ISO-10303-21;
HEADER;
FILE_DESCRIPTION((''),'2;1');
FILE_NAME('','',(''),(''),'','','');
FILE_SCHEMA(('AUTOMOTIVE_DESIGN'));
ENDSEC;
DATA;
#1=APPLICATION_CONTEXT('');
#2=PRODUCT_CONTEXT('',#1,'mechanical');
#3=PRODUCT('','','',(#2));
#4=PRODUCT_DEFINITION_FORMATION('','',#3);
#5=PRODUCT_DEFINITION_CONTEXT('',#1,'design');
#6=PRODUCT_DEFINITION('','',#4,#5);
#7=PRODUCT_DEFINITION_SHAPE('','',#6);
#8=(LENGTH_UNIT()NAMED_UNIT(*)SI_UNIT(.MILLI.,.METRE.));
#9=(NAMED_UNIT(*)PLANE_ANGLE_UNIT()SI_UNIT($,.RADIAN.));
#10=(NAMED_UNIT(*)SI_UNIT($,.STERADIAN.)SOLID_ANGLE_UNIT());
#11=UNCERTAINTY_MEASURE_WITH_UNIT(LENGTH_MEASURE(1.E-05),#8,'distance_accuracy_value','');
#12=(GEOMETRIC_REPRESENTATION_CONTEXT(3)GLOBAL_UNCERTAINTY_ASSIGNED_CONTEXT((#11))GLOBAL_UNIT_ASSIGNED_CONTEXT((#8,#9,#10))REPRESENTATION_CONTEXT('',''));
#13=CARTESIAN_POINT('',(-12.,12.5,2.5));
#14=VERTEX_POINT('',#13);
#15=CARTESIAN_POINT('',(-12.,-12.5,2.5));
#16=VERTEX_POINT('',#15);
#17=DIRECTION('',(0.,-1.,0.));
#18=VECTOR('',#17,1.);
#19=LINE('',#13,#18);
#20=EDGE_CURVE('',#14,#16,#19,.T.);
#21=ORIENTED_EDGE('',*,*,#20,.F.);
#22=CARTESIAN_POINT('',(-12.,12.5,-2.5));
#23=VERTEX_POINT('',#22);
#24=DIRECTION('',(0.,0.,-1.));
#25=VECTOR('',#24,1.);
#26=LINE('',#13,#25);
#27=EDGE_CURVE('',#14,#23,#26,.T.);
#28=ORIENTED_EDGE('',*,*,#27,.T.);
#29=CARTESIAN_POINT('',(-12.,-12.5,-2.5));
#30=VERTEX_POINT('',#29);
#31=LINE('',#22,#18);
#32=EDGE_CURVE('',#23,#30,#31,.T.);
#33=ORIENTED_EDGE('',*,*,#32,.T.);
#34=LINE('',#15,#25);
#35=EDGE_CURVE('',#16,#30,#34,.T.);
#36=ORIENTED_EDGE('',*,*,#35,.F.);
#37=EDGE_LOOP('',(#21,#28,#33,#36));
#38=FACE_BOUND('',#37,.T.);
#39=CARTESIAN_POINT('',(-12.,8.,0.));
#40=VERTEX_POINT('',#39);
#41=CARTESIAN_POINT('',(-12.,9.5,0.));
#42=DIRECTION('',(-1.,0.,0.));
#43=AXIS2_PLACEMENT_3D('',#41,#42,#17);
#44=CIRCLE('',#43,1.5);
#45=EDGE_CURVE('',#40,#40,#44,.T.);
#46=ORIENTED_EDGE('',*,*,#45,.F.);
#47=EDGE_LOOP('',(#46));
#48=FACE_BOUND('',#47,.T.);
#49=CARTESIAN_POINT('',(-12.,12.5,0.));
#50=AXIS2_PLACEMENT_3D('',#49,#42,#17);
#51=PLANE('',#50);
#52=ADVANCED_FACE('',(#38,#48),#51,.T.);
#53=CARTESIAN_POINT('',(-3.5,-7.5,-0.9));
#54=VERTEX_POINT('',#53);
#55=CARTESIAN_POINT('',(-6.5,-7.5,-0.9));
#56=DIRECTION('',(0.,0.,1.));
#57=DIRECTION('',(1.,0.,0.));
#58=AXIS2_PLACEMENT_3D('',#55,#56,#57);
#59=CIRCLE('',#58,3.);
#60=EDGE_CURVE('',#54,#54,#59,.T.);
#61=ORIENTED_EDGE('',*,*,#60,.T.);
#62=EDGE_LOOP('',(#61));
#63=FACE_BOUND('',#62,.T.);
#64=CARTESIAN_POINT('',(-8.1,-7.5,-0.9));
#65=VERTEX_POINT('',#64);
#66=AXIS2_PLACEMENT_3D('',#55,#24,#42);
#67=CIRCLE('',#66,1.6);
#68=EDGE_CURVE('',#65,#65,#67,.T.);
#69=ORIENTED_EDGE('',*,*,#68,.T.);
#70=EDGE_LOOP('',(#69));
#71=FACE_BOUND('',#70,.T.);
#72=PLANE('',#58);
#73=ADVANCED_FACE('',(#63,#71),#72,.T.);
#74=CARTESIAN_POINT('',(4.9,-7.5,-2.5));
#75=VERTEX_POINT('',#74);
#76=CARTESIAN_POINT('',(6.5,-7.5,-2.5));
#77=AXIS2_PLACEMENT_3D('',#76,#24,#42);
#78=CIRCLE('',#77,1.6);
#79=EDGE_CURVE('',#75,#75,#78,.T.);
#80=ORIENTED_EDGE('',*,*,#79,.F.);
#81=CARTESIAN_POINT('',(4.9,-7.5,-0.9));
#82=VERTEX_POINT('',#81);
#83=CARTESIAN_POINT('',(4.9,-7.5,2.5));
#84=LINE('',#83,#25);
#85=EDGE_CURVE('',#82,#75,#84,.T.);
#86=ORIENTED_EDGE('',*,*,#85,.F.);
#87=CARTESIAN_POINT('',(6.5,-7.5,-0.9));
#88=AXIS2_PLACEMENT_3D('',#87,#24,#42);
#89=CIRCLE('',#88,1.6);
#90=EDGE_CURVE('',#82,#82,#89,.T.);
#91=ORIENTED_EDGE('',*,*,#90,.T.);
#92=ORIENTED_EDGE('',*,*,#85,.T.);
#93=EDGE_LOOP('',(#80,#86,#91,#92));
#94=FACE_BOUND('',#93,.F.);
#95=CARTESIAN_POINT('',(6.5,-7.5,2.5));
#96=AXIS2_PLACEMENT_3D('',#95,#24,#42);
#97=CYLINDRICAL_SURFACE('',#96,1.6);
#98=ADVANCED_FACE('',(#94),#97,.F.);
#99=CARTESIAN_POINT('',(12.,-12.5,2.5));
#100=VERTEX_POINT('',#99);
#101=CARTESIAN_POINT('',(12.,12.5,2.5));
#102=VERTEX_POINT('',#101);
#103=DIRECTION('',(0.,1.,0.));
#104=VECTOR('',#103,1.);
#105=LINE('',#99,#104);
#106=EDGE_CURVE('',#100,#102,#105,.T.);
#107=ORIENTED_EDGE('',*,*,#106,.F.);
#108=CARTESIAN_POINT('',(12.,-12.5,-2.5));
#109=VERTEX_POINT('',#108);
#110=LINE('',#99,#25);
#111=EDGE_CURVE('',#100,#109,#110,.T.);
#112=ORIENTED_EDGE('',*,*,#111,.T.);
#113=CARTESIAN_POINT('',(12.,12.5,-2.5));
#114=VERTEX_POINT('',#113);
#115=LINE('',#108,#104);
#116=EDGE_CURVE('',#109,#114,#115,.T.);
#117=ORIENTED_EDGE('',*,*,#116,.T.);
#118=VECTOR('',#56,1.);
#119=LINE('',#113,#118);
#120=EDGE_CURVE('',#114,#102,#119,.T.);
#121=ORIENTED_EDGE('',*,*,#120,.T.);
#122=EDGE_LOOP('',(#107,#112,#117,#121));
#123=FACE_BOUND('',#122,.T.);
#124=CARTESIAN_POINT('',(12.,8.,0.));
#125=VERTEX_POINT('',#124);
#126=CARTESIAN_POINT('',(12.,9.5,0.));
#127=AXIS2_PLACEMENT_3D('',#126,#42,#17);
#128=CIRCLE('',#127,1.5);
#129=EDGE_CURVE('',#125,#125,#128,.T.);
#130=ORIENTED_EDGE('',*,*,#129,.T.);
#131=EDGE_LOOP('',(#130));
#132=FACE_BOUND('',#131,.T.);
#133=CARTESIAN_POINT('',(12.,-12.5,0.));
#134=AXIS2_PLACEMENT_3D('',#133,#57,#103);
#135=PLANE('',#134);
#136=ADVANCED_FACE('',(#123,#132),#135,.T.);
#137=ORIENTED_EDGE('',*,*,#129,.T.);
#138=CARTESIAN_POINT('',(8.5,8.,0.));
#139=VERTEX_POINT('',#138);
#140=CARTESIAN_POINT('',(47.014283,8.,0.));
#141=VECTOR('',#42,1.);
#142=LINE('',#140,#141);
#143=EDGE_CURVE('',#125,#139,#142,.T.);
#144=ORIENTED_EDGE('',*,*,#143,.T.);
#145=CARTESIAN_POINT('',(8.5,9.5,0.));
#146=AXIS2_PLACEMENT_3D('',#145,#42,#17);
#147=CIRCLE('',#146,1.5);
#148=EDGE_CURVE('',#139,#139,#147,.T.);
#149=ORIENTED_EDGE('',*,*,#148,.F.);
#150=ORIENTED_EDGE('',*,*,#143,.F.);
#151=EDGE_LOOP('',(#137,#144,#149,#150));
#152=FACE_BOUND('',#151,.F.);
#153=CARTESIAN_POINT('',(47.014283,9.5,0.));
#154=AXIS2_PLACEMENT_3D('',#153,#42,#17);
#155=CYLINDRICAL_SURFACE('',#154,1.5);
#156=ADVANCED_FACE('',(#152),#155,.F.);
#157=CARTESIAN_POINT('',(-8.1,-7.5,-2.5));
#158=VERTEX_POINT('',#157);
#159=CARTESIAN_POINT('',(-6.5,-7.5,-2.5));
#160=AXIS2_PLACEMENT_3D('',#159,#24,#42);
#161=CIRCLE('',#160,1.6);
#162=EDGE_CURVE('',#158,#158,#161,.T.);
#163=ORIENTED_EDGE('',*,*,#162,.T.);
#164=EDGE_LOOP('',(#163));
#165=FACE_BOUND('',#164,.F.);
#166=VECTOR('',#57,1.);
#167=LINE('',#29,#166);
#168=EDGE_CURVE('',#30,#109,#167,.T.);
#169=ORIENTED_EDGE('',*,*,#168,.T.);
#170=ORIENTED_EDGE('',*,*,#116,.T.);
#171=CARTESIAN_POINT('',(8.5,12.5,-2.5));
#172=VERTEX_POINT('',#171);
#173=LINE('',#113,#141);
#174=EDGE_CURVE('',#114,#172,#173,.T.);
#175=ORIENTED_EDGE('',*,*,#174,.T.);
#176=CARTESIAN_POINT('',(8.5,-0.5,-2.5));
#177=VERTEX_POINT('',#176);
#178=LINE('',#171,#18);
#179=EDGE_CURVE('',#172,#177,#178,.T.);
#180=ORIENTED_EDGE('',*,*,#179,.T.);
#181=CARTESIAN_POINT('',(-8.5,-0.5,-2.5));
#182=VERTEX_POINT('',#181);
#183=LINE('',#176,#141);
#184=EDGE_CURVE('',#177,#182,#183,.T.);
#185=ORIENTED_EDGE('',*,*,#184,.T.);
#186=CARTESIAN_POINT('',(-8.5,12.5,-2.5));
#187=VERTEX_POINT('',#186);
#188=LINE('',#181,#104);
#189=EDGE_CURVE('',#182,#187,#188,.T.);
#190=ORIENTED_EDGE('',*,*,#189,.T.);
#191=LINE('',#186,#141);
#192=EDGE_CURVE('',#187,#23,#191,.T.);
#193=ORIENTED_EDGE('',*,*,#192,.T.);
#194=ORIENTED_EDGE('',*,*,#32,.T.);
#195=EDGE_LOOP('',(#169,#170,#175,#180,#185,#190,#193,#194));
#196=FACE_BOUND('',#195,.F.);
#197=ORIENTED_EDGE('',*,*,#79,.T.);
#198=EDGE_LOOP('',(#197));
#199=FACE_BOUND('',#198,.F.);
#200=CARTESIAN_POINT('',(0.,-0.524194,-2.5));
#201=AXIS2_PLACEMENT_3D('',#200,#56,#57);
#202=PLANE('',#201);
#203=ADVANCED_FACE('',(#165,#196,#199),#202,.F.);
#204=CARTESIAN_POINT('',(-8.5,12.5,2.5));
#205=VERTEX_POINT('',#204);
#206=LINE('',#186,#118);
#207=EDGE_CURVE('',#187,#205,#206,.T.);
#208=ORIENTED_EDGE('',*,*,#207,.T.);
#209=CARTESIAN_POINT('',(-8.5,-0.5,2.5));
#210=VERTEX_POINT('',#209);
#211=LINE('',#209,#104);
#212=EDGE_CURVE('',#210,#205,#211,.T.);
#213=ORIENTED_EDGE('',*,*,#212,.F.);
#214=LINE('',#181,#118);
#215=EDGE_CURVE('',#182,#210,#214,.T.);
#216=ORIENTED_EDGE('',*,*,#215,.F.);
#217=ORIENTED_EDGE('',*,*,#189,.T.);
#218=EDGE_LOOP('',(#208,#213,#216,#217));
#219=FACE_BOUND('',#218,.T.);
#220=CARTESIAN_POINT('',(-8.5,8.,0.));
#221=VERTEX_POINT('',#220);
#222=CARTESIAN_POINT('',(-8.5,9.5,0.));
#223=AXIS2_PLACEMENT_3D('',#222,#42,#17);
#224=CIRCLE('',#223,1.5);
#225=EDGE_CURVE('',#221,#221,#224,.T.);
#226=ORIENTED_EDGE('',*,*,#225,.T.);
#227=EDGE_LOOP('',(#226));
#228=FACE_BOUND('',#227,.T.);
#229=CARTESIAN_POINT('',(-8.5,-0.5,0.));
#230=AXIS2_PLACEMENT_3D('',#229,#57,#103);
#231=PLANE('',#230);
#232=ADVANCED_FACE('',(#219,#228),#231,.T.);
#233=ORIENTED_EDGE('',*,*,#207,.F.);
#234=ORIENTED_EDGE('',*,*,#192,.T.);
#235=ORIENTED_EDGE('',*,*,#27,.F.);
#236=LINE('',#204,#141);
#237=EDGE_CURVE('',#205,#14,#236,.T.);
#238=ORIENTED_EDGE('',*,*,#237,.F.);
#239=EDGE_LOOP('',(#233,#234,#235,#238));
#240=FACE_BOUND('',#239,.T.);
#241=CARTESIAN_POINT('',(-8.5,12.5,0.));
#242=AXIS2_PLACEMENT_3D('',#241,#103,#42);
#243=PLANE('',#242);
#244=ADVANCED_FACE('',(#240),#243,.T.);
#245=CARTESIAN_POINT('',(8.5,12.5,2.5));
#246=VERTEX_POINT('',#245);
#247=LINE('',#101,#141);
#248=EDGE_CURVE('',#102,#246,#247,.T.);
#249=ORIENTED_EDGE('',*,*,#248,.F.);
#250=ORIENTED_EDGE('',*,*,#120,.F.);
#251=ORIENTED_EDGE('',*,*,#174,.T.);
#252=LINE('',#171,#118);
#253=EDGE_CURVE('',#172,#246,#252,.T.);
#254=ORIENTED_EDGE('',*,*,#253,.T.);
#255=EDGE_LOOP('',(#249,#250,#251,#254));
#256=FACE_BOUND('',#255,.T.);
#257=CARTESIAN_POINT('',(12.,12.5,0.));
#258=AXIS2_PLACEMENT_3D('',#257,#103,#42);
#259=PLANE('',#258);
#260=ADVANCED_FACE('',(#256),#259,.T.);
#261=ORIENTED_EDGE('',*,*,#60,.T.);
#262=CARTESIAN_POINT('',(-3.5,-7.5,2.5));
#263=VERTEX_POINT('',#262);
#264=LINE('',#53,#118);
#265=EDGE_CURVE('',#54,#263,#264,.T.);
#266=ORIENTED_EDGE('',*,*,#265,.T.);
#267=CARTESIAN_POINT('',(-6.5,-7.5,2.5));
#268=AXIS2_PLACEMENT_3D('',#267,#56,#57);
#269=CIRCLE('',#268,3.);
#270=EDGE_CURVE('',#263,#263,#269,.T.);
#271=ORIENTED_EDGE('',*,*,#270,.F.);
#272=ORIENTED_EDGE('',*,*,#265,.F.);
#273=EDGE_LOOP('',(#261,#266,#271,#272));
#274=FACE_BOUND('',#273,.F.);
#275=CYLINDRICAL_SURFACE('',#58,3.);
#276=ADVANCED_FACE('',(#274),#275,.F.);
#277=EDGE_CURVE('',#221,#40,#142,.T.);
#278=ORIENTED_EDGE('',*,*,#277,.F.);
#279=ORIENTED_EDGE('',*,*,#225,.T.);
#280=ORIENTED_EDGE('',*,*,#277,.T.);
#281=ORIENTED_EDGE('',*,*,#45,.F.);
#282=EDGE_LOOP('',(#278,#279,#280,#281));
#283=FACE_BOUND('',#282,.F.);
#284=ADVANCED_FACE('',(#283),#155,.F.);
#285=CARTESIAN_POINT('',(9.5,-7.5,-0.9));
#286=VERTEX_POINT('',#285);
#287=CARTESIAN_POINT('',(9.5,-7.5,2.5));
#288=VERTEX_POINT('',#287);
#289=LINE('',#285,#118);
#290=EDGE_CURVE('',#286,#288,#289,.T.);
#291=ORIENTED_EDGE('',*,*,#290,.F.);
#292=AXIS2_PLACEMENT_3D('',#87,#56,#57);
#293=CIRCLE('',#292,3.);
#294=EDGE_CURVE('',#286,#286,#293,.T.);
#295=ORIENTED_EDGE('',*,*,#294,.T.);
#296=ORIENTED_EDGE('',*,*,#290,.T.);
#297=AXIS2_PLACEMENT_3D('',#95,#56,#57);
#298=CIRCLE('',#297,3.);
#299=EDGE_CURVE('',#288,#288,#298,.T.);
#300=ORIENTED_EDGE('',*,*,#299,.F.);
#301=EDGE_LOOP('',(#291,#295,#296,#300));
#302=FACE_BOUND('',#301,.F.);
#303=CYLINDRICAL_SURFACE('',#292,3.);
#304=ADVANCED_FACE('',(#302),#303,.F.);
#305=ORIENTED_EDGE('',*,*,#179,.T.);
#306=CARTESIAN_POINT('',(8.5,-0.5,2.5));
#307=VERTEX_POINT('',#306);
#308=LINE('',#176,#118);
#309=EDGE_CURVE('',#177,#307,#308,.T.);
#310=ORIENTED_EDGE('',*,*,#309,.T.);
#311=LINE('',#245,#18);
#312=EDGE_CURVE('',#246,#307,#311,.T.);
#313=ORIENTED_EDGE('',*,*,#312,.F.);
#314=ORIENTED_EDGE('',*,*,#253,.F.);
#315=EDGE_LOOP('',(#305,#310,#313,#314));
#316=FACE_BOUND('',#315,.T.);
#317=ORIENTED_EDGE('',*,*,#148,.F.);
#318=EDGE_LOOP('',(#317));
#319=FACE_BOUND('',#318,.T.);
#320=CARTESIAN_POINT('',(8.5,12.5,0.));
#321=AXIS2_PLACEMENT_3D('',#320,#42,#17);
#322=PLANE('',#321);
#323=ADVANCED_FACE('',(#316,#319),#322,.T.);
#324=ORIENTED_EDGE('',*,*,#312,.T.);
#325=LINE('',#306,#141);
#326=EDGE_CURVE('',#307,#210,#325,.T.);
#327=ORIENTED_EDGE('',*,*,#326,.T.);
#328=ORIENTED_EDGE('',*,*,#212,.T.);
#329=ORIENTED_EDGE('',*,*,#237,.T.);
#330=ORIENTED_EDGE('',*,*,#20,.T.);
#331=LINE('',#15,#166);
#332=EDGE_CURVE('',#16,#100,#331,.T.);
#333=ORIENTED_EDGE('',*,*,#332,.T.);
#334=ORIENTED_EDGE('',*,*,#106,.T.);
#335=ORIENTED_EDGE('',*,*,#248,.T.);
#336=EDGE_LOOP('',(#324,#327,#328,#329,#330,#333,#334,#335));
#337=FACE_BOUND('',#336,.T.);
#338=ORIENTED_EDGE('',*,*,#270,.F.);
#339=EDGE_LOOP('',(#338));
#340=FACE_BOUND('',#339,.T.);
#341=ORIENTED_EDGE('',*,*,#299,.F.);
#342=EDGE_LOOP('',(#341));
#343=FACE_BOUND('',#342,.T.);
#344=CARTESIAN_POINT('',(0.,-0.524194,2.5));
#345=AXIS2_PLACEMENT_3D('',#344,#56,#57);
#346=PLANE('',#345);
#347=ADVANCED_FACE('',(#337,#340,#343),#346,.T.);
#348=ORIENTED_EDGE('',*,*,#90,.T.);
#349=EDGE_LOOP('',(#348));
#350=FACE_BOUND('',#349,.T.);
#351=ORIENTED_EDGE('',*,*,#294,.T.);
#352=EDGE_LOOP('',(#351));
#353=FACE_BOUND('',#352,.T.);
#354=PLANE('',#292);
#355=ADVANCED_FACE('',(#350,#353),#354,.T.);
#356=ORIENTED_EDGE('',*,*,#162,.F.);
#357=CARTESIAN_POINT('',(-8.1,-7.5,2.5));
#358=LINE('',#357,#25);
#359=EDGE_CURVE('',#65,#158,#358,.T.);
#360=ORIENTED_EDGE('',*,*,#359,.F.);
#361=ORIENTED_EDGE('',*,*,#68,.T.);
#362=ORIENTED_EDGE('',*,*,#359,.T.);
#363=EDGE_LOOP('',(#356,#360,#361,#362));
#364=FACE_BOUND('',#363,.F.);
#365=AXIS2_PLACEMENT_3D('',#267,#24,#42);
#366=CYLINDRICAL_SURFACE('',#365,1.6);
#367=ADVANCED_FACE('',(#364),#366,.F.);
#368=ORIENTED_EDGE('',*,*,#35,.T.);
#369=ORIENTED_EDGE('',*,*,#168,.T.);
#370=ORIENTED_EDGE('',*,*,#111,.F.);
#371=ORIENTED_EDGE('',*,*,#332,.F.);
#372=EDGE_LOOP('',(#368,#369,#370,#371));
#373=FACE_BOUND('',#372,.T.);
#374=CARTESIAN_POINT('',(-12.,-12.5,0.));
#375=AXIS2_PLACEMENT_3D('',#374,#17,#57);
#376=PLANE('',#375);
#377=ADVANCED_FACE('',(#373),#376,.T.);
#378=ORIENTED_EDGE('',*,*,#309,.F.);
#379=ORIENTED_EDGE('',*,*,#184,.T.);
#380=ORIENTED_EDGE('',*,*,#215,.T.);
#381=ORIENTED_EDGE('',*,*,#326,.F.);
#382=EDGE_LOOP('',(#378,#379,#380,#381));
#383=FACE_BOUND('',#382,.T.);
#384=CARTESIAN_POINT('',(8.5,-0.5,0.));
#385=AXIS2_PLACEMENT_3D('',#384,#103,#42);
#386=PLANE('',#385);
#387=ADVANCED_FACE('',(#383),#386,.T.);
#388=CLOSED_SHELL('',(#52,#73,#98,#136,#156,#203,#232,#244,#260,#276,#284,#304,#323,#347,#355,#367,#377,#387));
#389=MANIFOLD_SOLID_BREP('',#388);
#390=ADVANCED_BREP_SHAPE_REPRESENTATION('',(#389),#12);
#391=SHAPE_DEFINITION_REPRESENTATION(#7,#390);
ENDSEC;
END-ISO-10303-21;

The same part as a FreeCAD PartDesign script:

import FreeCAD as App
import Part
import Sketcher
Q = App.Units.Quantity

doc = App.newDocument("Part")
body = doc.addObject("PartDesign::Body", "Body")

# Sketch on XY plane
sketch1 = body.newObject("Sketcher::SketchObject", "Sketch")
sketch1.AttachmentSupport = (doc.getObject("XY_Plane"), [""])
sketch1.MapMode = "FlatFace"
sketch1.addGeometry([
    Part.LineSegment(App.Vector(12, -12.5, 0), App.Vector(12, 12.5, 0)),  # 0
    Part.LineSegment(App.Vector(12, 12.5, 0), App.Vector(8.5, 12.5, 0)),  # 1
    Part.LineSegment(App.Vector(8.5, 12.5, 0), App.Vector(8.5, -0.5, 0)),  # 2
    Part.LineSegment(App.Vector(8.5, -0.5, 0), App.Vector(-8.5, -0.5, 0)),  # 3
    Part.LineSegment(App.Vector(-8.5, -0.5, 0), App.Vector(-8.5, 12.5, 0)),  # 4
    Part.LineSegment(App.Vector(-8.5, 12.5, 0), App.Vector(-12, 12.5, 0)),  # 5
    Part.LineSegment(App.Vector(-12, 12.5, 0), App.Vector(-12, -12.5, 0)),  # 6
    Part.LineSegment(App.Vector(-12, -12.5, 0), App.Vector(12, -12.5, 0)),  # 7
], False)
sketch1.addConstraint([
    Sketcher.Constraint("Coincident", 0, 2, 1, 1),
    Sketcher.Constraint("Coincident", 1, 2, 2, 1),
    Sketcher.Constraint("Coincident", 2, 2, 3, 1),
    Sketcher.Constraint("Coincident", 3, 2, 4, 1),
    Sketcher.Constraint("Coincident", 4, 2, 5, 1),
    Sketcher.Constraint("Coincident", 5, 2, 6, 1),
    Sketcher.Constraint("Coincident", 6, 2, 7, 1),
    Sketcher.Constraint("Coincident", 7, 2, 0, 1),
    Sketcher.Constraint("Vertical", 0),
    Sketcher.Constraint("Horizontal", 1),
    Sketcher.Constraint("Vertical", 2),
    Sketcher.Constraint("Horizontal", 3),
    Sketcher.Constraint("Vertical", 4),
    Sketcher.Constraint("Horizontal", 5),
    Sketcher.Constraint("Vertical", 6),
    Sketcher.Constraint("Horizontal", 7),
    Sketcher.Constraint("Symmetric", 0, 2, 6, 2, -1, 1),
    Sketcher.Constraint("Symmetric", 1, 2, 4, 2, -2),
    Sketcher.Constraint("DistanceX", 3, 2, 3, 1, Q("17 mm")),
    Sketcher.Constraint("DistanceX", 7, 1, 7, 2, Q("24 mm")),
    Sketcher.Constraint("DistanceY", 0, 1, 0, 2, Q("25 mm")),
    Sketcher.Constraint("DistanceY", 2, 2, 2, 1, Q("13 mm")),
])
pad1 = body.newObject("PartDesign::Pad", "Pad")
pad1.Profile = sketch1
pad1.Length = 5
pad1.Midplane = True

# Sketch on XY plane
sketch2 = body.newObject("Sketcher::SketchObject", "Sketch001")
sketch2.AttachmentSupport = (doc.getObject("XY_Plane"), [""])
sketch2.MapMode = "FlatFace"
sketch2.AttachmentOffset = App.Placement(App.Vector(0, 0, 2.5), App.Rotation())
sketch2.addGeometry([
    Part.Circle(App.Vector(-6.5, -7.5, 0), App.Vector(0, 0, 1), 1.6),
    Part.Circle(App.Vector(6.5, -7.5, 0), App.Vector(0, 0, 1), 1.6),
], False)
sketch2.addConstraint([
    Sketcher.Constraint("Equal", 0, 1),
    Sketcher.Constraint("Symmetric", 0, 3, 1, 3, -2),
    Sketcher.Constraint("Diameter", 0, Q("3.2 mm")),
    Sketcher.Constraint("DistanceX", 0, 3, 1, 3, Q("13 mm")),
    Sketcher.Constraint("DistanceY", 0, 3, -1, 1, Q("7.5 mm")),
])
doc.recompute()
hole = body.newObject("PartDesign::Hole", "Hole")
hole.Profile = sketch2
hole.ThreadType = "None"
hole.Diameter = 3.2
hole.DepthType = "ThroughAll"
hole.HoleCutType = "Counterbore"
hole.HoleCutDiameter = 6
hole.HoleCutDepth = 3.4

# Sketch on YZ plane
sketch3 = body.newObject("Sketcher::SketchObject", "Sketch002")
sketch3.AttachmentSupport = (doc.getObject("YZ_Plane"), [""])
sketch3.MapMode = "FlatFace"
sketch3.AttachmentOffset = App.Placement(App.Vector(0, 0, 12), App.Rotation())
sketch3.addGeometry(Part.Circle(App.Vector(9.5, 0, 0), App.Vector(0, 0, 1), 1.5), False)
sketch3.addConstraint([
    Sketcher.Constraint("PointOnObject", 0, 3, -1),
    Sketcher.Constraint("Diameter", 0, Q("3 mm")),
    Sketcher.Constraint("DistanceX", -1, 1, 0, 3, Q("9.5 mm")),
])
doc.recompute()
hole2 = body.newObject("PartDesign::Hole", "Hole001")
hole2.Profile = sketch3
hole2.ThreadType = "None"
hole2.Diameter = 3
hole2.DepthType = "ThroughAll"

doc.recompute()
